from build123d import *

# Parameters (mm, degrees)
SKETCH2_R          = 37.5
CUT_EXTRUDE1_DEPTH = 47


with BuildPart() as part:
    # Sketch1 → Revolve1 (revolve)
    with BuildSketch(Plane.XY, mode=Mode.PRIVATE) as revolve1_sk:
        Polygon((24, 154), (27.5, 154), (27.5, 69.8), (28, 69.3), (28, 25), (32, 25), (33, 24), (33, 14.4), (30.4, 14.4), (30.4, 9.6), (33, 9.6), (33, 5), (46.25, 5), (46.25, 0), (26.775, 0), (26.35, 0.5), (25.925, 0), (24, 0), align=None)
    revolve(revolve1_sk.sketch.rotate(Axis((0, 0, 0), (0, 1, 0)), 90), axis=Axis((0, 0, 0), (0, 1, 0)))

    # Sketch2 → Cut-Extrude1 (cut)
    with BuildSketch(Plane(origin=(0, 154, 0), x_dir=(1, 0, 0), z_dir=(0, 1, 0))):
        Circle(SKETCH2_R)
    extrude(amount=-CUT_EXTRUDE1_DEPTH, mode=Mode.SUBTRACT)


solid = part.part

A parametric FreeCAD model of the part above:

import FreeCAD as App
import Part
import Sketcher

V = App.Vector
Q = App.Units.Quantity

doc = App.newDocument("Part")
body = doc.addObject("PartDesign::Body", "Body")

# Sketch on XY plane
sketch1 = doc.addObject("Sketcher::SketchObject", "Sketch")
body.addObject(sketch1)
sketch1.AttachmentSupport = (doc.XY_Plane, [""])
sketch1.MapMode = "FlatFace"
sketch1.addGeometry(Part.LineSegment(V(27.5, 154, 0), V(24, 154, 0)), False)
sketch1.addGeometry(Part.LineSegment(V(24, 154, 0), V(24, 0, 0)), False)
sketch1.addGeometry(Part.LineSegment(V(24, 0, 0), V(25.9, 0, 0)), False)
sketch1.addGeometry(Part.LineSegment(V(25.9, 0, 0), V(26.4, 0.5, 0)), False)
sketch1.addGeometry(Part.LineSegment(V(26.4, 0.5, 0), V(26.8, 0, 0)), False)
sketch1.addGeometry(Part.LineSegment(V(26.8, 0, 0), V(46.2, 0, 0)), False)
sketch1.addGeometry(Part.LineSegment(V(46.2, 0, 0), V(46.2, 5, 0)), False)
sketch1.addGeometry(Part.LineSegment(V(46.2, 5, 0), V(33, 5, 0)), False)
sketch1.addGeometry(Part.LineSegment(V(33, 5, 0), V(33, 9.6, 0)), False)
sketch1.addGeometry(Part.LineSegment(V(33, 9.6, 0), V(30.4, 9.6, 0)), False)
sketch1.addGeometry(Part.LineSegment(V(30.4, 9.6, 0), V(30.4, 14.4, 0)), False)
sketch1.addGeometry(Part.LineSegment(V(30.4, 14.4, 0), V(33, 14.4, 0)), False)
sketch1.addGeometry(Part.LineSegment(V(33, 14.4, 0), V(33, 24, 0)), False)
sketch1.addGeometry(Part.LineSegment(V(33, 24, 0), V(32, 25, 0)), False)
sketch1.addGeometry(Part.LineSegment(V(32, 25, 0), V(28, 25, 0)), False)
sketch1.addGeometry(Part.LineSegment(V(28, 25, 0), V(28, 69.3, 0)), False)
sketch1.addGeometry(Part.LineSegment(V(28, 69.3, 0), V(27.5, 69.8, 0)), False)
sketch1.addGeometry(Part.LineSegment(V(27.5, 69.8, 0), V(27.5, 154, 0)), False)
sketch1.addConstraint(Sketcher.Constraint("Coincident", 0, 2, 1, 1))
sketch1.addConstraint(Sketcher.Constraint("Coincident", 1, 2, 2, 1))
sketch1.addConstraint(Sketcher.Constraint("Coincident", 2, 2, 3, 1))
sketch1.addConstraint(Sketcher.Constraint("Coincident", 3, 2, 4, 1))
sketch1.addConstraint(Sketcher.Constraint("Coincident", 4, 2, 5, 1))
sketch1.addConstraint(Sketcher.Constraint("Coincident", 5, 2, 6, 1))
sketch1.addConstraint(Sketcher.Constraint("Coincident", 6, 2, 7, 1))
sketch1.addConstraint(Sketcher.Constraint("Coincident", 7, 2, 8, 1))
sketch1.addConstraint(Sketcher.Constraint("Coincident", 8, 2, 9, 1))
sketch1.addConstraint(Sketcher.Constraint("Coincident", 9, 2, 10, 1))
sketch1.addConstraint(Sketcher.Constraint("Coincident", 10, 2, 11, 1))
sketch1.addConstraint(Sketcher.Constraint("Coincident", 11, 2, 12, 1))
sketch1.addConstraint(Sketcher.Constraint("Coincident", 12, 2, 13, 1))
sketch1.addConstraint(Sketcher.Constraint("Coincident", 13, 2, 14, 1))
sketch1.addConstraint(Sketcher.Constraint("Coincident", 14, 2, 15, 1))
sketch1.addConstraint(Sketcher.Constraint("Coincident", 15, 2, 16, 1))
sketch1.addConstraint(Sketcher.Constraint("Coincident", 16, 2, 17, 1))
sketch1.addConstraint(Sketcher.Constraint("Coincident", 17, 2, 0, 1))
sketch1.addConstraint(Sketcher.Constraint("Horizontal", 0))
sketch1.addConstraint(Sketcher.Constraint("Vertical", 1))
sketch1.addConstraint(Sketcher.Constraint("Horizontal", 2))
sketch1.addConstraint(Sketcher.Constraint("Horizontal", 5))
sketch1.addConstraint(Sketcher.Constraint("Vertical", 6))
sketch1.addConstraint(Sketcher.Constraint("Horizontal", 7))
sketch1.addConstraint(Sketcher.Constraint("Vertical", 8))
sketch1.addConstraint(Sketcher.Constraint("Horizontal", 9))
sketch1.addConstraint(Sketcher.Constraint("Vertical", 10))
sketch1.addConstraint(Sketcher.Constraint("Horizontal", 11))
sketch1.addConstraint(Sketcher.Constraint("Vertical", 12))
sketch1.addConstraint(Sketcher.Constraint("Horizontal", 14))
sketch1.addConstraint(Sketcher.Constraint("Vertical", 15))
sketch1.addConstraint(Sketcher.Constraint("Vertical", 17))
sketch1.addConstraint(Sketcher.Constraint("PointOnObject", 1, 2, -1))
sketch1.addConstraint(Sketcher.Constraint("PointOnObject", 4, 2, -1))
sketch1.addConstraint(Sketcher.Constraint("Parallel", 13, 16))
sketch1.addConstraint(Sketcher.Constraint("Vertical", 8, 2, 11, 2))
sketch1.addConstraint(Sketcher.Constraint("Equal", 3, 4))
sketch1.addConstraint(Sketcher.Constraint("DistanceX", 14, 2, 14, 1, Q("4 mm")))
sketch1.addConstraint(Sketcher.Constraint("DistanceY", 1, 2, 1, 1, Q("154 mm")))
sketch1.addConstraint(Sketcher.Constraint("DistanceY", 6, 1, 6, 2, Q("5 mm")))
sketch1.addConstraint(Sketcher.Constraint("Angle", 13, Q("135 deg")))
sketch1.addConstraint(Sketcher.Constraint("DistanceX", 0, 2, 0, 1, Q("3.5 mm")))
sketch1.addConstraint(Sketcher.Constraint("DistanceX", 9, 2, 9, 1, Q("2.6 mm")))
sketch1.addConstraint(Sketcher.Constraint("DistanceY", 8, 1, 8, 2, Q("4.6 mm")))
sketch1.addConstraint(Sketcher.Constraint("DistanceY", 10, 1, 10, 2, Q("4.8 mm")))
sketch1.addConstraint(Sketcher.Constraint("DistanceY", 12, 1, 12, 2, Q("9.6 mm")))
sketch1.addConstraint(Sketcher.Constraint("DistanceY", 15, 1, 15, 2, Q("44.3 mm")))
sketch1.addConstraint(Sketcher.Constraint("DistanceY", 17, 1, 17, 2, Q("84.2 mm")))
sketch1.addConstraint(Sketcher.Constraint("DistanceX", -1, 1, 0, 2, Q("24 mm")))
sketch1.addConstraint(Sketcher.Constraint("DistanceX", -1, 1, 13, 2, Q("32 mm")))
sketch1.addConstraint(Sketcher.Constraint("DistanceX", 7, 2, 7, 1, Q("13.25 mm")))
sketch1.addConstraint(Sketcher.Constraint("DistanceY", -1, 1, 3, 2, Q("0.5 mm")))
sketch1.addConstraint(Sketcher.Constraint("DistanceX", 3, 2, 5, 2, Q("19.9 mm")))
sketch1.addConstraint(Sketcher.Constraint("DistanceX", 2, 1, 2, 2, Q("1.925 mm")))
revolution = doc.addObject("PartDesign::Revolution", "Revolution")
body.addObject(revolution)
revolution.Profile = sketch1
revolution.ReferenceAxis = (sketch1, ["V_Axis"])
revolution.Angle = 360

# Sketch on XZ plane
sketch2 = doc.addObject("Sketcher::SketchObject", "Sketch001")
body.addObject(sketch2)
sketch2.AttachmentSupport = (doc.XZ_Plane, [""])
sketch2.MapMode = "FlatFace"
sketch2.AttachmentOffset = App.Placement(V(0, 0, -154), App.Rotation())
sketch2.addGeometry(Part.Circle(V(0, 0, 0), V(0, 0, 1), 38), False)
sketch2.addConstraint(Sketcher.Constraint("Coincident", 0, 3, -1, 1))
sketch2.addConstraint(Sketcher.Constraint("Diameter", 0, Q("75 mm")))
pocket1 = doc.addObject("PartDesign::Pocket", "Pocket")
body.addObject(pocket1)
pocket1.Profile = sketch2
pocket1.Length = 47
pocket1.Reversed = True

doc.recompute()
